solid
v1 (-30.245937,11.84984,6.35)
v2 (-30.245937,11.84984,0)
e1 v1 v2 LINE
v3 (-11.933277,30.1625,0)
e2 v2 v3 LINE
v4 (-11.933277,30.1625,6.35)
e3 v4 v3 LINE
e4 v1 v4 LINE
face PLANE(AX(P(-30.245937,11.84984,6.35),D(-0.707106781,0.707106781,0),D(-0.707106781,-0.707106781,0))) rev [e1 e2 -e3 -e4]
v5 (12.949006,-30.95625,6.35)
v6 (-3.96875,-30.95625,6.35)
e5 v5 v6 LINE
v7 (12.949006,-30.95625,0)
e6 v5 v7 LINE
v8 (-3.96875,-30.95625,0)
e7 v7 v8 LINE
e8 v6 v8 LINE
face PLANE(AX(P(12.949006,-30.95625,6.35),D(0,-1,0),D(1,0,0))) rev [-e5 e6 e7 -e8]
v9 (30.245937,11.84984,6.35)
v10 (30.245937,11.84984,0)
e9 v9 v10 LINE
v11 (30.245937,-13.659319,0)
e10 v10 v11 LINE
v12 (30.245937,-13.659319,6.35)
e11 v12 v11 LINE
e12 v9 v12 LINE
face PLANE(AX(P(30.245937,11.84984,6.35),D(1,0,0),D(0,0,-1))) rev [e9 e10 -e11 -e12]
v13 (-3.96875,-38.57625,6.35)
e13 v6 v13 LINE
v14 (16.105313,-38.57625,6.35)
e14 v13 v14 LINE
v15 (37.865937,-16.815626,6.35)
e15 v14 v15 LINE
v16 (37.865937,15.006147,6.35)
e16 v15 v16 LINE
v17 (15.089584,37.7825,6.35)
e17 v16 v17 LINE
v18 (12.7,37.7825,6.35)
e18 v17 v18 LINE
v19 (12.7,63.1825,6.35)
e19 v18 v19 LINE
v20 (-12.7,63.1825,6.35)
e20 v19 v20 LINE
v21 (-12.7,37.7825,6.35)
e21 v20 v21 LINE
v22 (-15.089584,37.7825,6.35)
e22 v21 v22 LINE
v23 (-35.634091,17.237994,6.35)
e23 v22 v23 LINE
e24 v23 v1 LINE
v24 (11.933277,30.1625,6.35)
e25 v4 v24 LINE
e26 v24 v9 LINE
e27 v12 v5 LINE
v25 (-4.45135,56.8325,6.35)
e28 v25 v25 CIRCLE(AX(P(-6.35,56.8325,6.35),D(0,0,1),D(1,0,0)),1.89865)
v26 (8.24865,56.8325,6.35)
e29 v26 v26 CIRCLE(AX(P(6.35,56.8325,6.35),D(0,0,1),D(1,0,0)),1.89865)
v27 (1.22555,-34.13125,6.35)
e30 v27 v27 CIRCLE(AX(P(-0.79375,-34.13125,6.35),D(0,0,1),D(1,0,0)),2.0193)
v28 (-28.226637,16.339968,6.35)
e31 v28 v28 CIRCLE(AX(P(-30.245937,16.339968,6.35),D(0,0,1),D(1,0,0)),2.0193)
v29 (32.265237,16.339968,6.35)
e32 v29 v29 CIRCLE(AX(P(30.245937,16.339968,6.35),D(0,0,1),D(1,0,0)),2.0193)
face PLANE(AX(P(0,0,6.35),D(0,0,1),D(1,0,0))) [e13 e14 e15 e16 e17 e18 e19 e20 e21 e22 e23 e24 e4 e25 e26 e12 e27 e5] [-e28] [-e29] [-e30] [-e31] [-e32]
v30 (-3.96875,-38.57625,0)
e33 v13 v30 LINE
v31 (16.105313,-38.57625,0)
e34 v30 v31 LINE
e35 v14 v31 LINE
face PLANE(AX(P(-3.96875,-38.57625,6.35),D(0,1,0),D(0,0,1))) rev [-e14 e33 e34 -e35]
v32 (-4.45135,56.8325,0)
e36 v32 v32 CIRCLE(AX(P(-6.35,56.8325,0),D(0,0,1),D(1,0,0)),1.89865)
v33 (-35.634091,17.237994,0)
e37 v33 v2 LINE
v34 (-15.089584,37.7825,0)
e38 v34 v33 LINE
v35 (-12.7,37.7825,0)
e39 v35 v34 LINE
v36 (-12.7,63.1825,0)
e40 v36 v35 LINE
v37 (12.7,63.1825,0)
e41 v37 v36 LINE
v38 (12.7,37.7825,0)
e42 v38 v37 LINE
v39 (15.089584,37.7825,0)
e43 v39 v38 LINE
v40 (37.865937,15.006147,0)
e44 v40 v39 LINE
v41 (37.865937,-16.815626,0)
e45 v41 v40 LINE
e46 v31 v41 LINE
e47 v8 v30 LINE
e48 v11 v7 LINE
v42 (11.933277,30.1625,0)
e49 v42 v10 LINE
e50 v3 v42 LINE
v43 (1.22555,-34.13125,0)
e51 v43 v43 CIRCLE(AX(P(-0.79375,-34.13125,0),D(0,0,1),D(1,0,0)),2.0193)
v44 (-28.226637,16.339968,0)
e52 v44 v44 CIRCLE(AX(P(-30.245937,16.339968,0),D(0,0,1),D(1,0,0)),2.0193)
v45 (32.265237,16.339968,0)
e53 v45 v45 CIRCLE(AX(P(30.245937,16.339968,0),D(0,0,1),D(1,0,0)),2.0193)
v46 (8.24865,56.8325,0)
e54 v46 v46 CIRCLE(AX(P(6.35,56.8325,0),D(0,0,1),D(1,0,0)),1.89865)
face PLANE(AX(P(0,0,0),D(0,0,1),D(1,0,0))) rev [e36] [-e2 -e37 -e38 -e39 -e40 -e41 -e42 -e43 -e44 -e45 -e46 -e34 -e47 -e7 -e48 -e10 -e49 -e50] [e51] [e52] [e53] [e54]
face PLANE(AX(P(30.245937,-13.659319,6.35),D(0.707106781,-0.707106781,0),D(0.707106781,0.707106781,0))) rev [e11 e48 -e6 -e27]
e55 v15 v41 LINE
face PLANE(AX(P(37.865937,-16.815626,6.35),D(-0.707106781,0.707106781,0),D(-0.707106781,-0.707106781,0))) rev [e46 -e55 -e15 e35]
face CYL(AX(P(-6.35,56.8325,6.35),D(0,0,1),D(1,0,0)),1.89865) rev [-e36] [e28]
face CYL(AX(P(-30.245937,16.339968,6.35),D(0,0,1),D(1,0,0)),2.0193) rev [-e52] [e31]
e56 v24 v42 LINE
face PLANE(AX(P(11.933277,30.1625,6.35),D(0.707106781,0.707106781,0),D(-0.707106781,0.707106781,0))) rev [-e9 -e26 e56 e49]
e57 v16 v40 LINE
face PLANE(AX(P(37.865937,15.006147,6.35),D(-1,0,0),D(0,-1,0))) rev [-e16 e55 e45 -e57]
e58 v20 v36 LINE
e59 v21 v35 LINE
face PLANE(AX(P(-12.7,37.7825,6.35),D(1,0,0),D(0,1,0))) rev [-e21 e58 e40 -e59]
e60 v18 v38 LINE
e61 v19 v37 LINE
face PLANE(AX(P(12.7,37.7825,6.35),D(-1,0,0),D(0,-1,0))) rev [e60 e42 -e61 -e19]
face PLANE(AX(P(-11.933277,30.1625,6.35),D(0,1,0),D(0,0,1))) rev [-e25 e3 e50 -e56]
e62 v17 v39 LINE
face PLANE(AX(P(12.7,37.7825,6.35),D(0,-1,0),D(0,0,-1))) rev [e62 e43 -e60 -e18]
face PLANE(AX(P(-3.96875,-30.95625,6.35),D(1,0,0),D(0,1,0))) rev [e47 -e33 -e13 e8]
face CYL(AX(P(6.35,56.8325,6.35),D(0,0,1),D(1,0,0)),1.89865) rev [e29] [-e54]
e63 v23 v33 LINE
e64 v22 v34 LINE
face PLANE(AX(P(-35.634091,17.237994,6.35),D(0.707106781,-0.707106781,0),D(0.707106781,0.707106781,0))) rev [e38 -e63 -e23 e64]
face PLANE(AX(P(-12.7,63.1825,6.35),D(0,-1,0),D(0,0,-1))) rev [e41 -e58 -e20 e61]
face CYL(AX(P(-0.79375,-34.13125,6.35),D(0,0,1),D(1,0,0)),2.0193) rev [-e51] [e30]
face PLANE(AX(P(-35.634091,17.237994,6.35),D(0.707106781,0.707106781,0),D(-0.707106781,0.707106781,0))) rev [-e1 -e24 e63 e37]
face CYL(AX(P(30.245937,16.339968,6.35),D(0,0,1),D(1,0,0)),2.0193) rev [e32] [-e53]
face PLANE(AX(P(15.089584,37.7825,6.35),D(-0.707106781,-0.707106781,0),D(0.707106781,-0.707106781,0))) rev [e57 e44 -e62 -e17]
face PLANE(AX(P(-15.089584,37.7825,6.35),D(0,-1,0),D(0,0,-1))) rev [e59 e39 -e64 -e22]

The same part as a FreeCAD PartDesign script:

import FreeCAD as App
import Part
import Sketcher

V = App.Vector
Q = App.Units.Quantity


def add_polygon(sketch, points):
    """Adds a closed chain of lines whose ends are joined by coincident constraints."""
    first, n = sketch.GeometryCount, len(points)
    for a, b in zip(points, points[1:] + points[:1]):
        sketch.addGeometry(Part.LineSegment(App.Vector(*a, 0), App.Vector(*b, 0)), False)
    for i in range(n):
        sketch.addConstraint(Sketcher.Constraint("Coincident", first + i, 2, first + (i + 1) % n, 1))

doc = App.newDocument("Part")
body = doc.addObject("PartDesign::Body", "Body")

# Sketch on XY plane
sketch1 = body.newObject("Sketcher::SketchObject", "Sketch")
sketch1.AttachmentSupport = (doc.getObject("XY_Plane"), [""])
sketch1.MapMode = "FlatFace"
add_polygon(sketch1, [(-15.1, 37.8), (-35.6, 17.2), (-30.2, 11.8), (-11.9, 30.2), (11.9, 30.2), (30.2, 11.8), (30.2, -13.7), (12.9, -31), (-4, -31), (-4, -38.6), (16.1, -38.6), (37.9, -16.8), (37.9, 15), (15.1, 37.8), (12.7, 37.8), (12.7, 63.2), (-12.7, 63.2), (-12.7, 37.8)])  # lines 0-17
sketch1.addConstraint([
    Sketcher.Constraint("Horizontal", 3),
    Sketcher.Constraint("Vertical", 5),
    Sketcher.Constraint("Horizontal", 7),
    Sketcher.Constraint("Vertical", 8),
    Sketcher.Constraint("Horizontal", 9),
    Sketcher.Constraint("Vertical", 11),
    Sketcher.Constraint("Horizontal", 13),
    Sketcher.Constraint("Vertical", 14),
    Sketcher.Constraint("Horizontal", 15),
    Sketcher.Constraint("Vertical", 16),
    Sketcher.Constraint("Horizontal", 17),
    Sketcher.Constraint("Symmetric", 1, 2, 4, 2, -2),
    Sketcher.Constraint("Symmetric", 13, 2, 16, 2, -2),
    Sketcher.Constraint("Perpendicular", 0, 1),
    Sketcher.Constraint("Perpendicular", 1, 2),
    Sketcher.Constraint("Perpendicular", 2, 4),
    Sketcher.Constraint("Perpendicular", 4, 6),
    Sketcher.Constraint("Parallel", 6, 10),
    Sketcher.Constraint("Perpendicular", 10, 12),
    Sketcher.Constraint("Equal", 13, 17),
    Sketcher.Constraint("Equal", 15, 14),
    Sketcher.Constraint("Equal", 2, 4),
    Sketcher.Constraint("DistanceX", 15, 2, 15, 1, Q("1 in")),
    Sketcher.Constraint("DistanceY", 8, 2, 8, 1, Q("0.3 in")),
    Sketcher.Constraint("Distance", 1, Q("0.3 in")),
    Sketcher.Constraint("DistanceX", 5, 2, 10, 2, Q("0.3 in")),
    Sketcher.Constraint("DistanceY", 3, 2, 12, 2, Q("0.3 in")),
    Sketcher.Constraint("DistanceY", -1, 1, 2, 2, Q("1.1875 in")),
    Sketcher.Constraint("DistanceY", 6, 2, -1, 1, Q("1.21875 in")),
    Sketcher.Constraint("DistanceX", 7, 2, -1, 1, Q("0.15625 in")),
    Sketcher.Constraint("DistanceY", 5, 2, 5, 1, Q("25.509159 mm")),
    Sketcher.Constraint("Distance", 0, Q("29.05432 mm")),
    Sketcher.Constraint("Distance", 10, Q("30.774169 mm")),
    Sketcher.Constraint("DistanceX", 3, 1, 3, 2, Q("23.866554 mm")),
])
pad1 = body.newObject("PartDesign::Pad", "Pad")
pad1.Profile = sketch1
pad1.Length = Q("0.25 in")

# Sketch on XY plane
sketch2 = body.newObject("Sketcher::SketchObject", "Sketch001")
sketch2.AttachmentSupport = (doc.getObject("XY_Plane"), [""])
sketch2.MapMode = "FlatFace"
sketch2.AttachmentOffset = App.Placement(V(0, 0, 0.25 * 25.4), App.Rotation())
sketch2.addGeometry(Part.Circle(V(-30.2, 16.3, 0), V(0, 0, 1), 2), False)
sketch2.addConstraint([
    Sketcher.Constraint("Diameter", 0, Q("0.159 in")),
    Sketcher.Constraint("DistanceX", 0, 3, -1, 1, Q("30.245937 mm")),
    Sketcher.Constraint("DistanceY", -1, 1, 0, 3, Q("16.339968 mm")),
])
doc.recompute()
hole = body.newObject("PartDesign::Hole", "Hole")
hole.Profile = sketch2
hole.ThreadType = "None"
hole.Diameter = Q("0.159 in")
hole.DepthType = "ThroughAll"

# Sketch on XY plane
sketch3 = body.newObject("Sketcher::SketchObject", "Sketch002")
sketch3.AttachmentSupport = (doc.getObject("XY_Plane"), [""])
sketch3.MapMode = "FlatFace"
sketch3.AttachmentOffset = App.Placement(V(0, 0, 0.25 * 25.4), App.Rotation())
sketch3.addGeometry([
    Part.Circle(V(30.2, 16.3, 0), V(0, 0, 1), 2),
    Part.Circle(V(-0.8, -34.1, 0), V(0, 0, 1), 2),
], False)
sketch3.addConstraint([
    Sketcher.Constraint("Equal", 0, 1),
    Sketcher.Constraint("Diameter", 0, Q("0.159 in")),
    Sketcher.Constraint("DistanceX", 1, 3, -1, 1, Q("0.03125 in")),
    Sketcher.Constraint("DistanceY", 1, 3, -1, 1, Q("1.34375 in")),
    Sketcher.Constraint("DistanceX", -1, 1, 0, 3, Q("30.245937 mm")),
    Sketcher.Constraint("DistanceY", -1, 1, 0, 3, Q("16.339968 mm")),
])
doc.recompute()
hole2 = body.newObject("PartDesign::Hole", "Hole001")
hole2.Profile = sketch3
hole2.ThreadType = "None"
hole2.Diameter = Q("0.159 in")
hole2.DepthType = "ThroughAll"

# Sketch on XY plane
sketch4 = body.newObject("Sketcher::SketchObject", "Sketch003")
sketch4.AttachmentSupport = (doc.getObject("XY_Plane"), [""])
sketch4.MapMode = "FlatFace"
sketch4.AttachmentOffset = App.Placement(V(0, 0, 0.25 * 25.4), App.Rotation())
sketch4.addGeometry([
    Part.Circle(V(-6.3, 56.8, 0), V(0, 0, 1), 1.9),
    Part.Circle(V(6.3, 56.8, 0), V(0, 0, 1), 1.9),
], False)
sketch4.addConstraint([
    Sketcher.Constraint("Equal", 0, 1),
    Sketcher.Constraint("Symmetric", 0, 3, 1, 3, -2),
    Sketcher.Constraint("Diameter", 0, Q("0.1495 in")),
    Sketcher.Constraint("DistanceX", 0, 3, 1, 3, Q("0.5 in")),
    Sketcher.Constraint("DistanceY", -1, 1, 0, 3, Q("2.2375 in")),
])
doc.recompute()
hole3 = body.newObject("PartDesign::Hole", "Hole002")
hole3.Profile = sketch4
hole3.ThreadType = "None"
hole3.Diameter = Q("0.1495 in")
hole3.DepthType = "ThroughAll"

doc.recompute()
